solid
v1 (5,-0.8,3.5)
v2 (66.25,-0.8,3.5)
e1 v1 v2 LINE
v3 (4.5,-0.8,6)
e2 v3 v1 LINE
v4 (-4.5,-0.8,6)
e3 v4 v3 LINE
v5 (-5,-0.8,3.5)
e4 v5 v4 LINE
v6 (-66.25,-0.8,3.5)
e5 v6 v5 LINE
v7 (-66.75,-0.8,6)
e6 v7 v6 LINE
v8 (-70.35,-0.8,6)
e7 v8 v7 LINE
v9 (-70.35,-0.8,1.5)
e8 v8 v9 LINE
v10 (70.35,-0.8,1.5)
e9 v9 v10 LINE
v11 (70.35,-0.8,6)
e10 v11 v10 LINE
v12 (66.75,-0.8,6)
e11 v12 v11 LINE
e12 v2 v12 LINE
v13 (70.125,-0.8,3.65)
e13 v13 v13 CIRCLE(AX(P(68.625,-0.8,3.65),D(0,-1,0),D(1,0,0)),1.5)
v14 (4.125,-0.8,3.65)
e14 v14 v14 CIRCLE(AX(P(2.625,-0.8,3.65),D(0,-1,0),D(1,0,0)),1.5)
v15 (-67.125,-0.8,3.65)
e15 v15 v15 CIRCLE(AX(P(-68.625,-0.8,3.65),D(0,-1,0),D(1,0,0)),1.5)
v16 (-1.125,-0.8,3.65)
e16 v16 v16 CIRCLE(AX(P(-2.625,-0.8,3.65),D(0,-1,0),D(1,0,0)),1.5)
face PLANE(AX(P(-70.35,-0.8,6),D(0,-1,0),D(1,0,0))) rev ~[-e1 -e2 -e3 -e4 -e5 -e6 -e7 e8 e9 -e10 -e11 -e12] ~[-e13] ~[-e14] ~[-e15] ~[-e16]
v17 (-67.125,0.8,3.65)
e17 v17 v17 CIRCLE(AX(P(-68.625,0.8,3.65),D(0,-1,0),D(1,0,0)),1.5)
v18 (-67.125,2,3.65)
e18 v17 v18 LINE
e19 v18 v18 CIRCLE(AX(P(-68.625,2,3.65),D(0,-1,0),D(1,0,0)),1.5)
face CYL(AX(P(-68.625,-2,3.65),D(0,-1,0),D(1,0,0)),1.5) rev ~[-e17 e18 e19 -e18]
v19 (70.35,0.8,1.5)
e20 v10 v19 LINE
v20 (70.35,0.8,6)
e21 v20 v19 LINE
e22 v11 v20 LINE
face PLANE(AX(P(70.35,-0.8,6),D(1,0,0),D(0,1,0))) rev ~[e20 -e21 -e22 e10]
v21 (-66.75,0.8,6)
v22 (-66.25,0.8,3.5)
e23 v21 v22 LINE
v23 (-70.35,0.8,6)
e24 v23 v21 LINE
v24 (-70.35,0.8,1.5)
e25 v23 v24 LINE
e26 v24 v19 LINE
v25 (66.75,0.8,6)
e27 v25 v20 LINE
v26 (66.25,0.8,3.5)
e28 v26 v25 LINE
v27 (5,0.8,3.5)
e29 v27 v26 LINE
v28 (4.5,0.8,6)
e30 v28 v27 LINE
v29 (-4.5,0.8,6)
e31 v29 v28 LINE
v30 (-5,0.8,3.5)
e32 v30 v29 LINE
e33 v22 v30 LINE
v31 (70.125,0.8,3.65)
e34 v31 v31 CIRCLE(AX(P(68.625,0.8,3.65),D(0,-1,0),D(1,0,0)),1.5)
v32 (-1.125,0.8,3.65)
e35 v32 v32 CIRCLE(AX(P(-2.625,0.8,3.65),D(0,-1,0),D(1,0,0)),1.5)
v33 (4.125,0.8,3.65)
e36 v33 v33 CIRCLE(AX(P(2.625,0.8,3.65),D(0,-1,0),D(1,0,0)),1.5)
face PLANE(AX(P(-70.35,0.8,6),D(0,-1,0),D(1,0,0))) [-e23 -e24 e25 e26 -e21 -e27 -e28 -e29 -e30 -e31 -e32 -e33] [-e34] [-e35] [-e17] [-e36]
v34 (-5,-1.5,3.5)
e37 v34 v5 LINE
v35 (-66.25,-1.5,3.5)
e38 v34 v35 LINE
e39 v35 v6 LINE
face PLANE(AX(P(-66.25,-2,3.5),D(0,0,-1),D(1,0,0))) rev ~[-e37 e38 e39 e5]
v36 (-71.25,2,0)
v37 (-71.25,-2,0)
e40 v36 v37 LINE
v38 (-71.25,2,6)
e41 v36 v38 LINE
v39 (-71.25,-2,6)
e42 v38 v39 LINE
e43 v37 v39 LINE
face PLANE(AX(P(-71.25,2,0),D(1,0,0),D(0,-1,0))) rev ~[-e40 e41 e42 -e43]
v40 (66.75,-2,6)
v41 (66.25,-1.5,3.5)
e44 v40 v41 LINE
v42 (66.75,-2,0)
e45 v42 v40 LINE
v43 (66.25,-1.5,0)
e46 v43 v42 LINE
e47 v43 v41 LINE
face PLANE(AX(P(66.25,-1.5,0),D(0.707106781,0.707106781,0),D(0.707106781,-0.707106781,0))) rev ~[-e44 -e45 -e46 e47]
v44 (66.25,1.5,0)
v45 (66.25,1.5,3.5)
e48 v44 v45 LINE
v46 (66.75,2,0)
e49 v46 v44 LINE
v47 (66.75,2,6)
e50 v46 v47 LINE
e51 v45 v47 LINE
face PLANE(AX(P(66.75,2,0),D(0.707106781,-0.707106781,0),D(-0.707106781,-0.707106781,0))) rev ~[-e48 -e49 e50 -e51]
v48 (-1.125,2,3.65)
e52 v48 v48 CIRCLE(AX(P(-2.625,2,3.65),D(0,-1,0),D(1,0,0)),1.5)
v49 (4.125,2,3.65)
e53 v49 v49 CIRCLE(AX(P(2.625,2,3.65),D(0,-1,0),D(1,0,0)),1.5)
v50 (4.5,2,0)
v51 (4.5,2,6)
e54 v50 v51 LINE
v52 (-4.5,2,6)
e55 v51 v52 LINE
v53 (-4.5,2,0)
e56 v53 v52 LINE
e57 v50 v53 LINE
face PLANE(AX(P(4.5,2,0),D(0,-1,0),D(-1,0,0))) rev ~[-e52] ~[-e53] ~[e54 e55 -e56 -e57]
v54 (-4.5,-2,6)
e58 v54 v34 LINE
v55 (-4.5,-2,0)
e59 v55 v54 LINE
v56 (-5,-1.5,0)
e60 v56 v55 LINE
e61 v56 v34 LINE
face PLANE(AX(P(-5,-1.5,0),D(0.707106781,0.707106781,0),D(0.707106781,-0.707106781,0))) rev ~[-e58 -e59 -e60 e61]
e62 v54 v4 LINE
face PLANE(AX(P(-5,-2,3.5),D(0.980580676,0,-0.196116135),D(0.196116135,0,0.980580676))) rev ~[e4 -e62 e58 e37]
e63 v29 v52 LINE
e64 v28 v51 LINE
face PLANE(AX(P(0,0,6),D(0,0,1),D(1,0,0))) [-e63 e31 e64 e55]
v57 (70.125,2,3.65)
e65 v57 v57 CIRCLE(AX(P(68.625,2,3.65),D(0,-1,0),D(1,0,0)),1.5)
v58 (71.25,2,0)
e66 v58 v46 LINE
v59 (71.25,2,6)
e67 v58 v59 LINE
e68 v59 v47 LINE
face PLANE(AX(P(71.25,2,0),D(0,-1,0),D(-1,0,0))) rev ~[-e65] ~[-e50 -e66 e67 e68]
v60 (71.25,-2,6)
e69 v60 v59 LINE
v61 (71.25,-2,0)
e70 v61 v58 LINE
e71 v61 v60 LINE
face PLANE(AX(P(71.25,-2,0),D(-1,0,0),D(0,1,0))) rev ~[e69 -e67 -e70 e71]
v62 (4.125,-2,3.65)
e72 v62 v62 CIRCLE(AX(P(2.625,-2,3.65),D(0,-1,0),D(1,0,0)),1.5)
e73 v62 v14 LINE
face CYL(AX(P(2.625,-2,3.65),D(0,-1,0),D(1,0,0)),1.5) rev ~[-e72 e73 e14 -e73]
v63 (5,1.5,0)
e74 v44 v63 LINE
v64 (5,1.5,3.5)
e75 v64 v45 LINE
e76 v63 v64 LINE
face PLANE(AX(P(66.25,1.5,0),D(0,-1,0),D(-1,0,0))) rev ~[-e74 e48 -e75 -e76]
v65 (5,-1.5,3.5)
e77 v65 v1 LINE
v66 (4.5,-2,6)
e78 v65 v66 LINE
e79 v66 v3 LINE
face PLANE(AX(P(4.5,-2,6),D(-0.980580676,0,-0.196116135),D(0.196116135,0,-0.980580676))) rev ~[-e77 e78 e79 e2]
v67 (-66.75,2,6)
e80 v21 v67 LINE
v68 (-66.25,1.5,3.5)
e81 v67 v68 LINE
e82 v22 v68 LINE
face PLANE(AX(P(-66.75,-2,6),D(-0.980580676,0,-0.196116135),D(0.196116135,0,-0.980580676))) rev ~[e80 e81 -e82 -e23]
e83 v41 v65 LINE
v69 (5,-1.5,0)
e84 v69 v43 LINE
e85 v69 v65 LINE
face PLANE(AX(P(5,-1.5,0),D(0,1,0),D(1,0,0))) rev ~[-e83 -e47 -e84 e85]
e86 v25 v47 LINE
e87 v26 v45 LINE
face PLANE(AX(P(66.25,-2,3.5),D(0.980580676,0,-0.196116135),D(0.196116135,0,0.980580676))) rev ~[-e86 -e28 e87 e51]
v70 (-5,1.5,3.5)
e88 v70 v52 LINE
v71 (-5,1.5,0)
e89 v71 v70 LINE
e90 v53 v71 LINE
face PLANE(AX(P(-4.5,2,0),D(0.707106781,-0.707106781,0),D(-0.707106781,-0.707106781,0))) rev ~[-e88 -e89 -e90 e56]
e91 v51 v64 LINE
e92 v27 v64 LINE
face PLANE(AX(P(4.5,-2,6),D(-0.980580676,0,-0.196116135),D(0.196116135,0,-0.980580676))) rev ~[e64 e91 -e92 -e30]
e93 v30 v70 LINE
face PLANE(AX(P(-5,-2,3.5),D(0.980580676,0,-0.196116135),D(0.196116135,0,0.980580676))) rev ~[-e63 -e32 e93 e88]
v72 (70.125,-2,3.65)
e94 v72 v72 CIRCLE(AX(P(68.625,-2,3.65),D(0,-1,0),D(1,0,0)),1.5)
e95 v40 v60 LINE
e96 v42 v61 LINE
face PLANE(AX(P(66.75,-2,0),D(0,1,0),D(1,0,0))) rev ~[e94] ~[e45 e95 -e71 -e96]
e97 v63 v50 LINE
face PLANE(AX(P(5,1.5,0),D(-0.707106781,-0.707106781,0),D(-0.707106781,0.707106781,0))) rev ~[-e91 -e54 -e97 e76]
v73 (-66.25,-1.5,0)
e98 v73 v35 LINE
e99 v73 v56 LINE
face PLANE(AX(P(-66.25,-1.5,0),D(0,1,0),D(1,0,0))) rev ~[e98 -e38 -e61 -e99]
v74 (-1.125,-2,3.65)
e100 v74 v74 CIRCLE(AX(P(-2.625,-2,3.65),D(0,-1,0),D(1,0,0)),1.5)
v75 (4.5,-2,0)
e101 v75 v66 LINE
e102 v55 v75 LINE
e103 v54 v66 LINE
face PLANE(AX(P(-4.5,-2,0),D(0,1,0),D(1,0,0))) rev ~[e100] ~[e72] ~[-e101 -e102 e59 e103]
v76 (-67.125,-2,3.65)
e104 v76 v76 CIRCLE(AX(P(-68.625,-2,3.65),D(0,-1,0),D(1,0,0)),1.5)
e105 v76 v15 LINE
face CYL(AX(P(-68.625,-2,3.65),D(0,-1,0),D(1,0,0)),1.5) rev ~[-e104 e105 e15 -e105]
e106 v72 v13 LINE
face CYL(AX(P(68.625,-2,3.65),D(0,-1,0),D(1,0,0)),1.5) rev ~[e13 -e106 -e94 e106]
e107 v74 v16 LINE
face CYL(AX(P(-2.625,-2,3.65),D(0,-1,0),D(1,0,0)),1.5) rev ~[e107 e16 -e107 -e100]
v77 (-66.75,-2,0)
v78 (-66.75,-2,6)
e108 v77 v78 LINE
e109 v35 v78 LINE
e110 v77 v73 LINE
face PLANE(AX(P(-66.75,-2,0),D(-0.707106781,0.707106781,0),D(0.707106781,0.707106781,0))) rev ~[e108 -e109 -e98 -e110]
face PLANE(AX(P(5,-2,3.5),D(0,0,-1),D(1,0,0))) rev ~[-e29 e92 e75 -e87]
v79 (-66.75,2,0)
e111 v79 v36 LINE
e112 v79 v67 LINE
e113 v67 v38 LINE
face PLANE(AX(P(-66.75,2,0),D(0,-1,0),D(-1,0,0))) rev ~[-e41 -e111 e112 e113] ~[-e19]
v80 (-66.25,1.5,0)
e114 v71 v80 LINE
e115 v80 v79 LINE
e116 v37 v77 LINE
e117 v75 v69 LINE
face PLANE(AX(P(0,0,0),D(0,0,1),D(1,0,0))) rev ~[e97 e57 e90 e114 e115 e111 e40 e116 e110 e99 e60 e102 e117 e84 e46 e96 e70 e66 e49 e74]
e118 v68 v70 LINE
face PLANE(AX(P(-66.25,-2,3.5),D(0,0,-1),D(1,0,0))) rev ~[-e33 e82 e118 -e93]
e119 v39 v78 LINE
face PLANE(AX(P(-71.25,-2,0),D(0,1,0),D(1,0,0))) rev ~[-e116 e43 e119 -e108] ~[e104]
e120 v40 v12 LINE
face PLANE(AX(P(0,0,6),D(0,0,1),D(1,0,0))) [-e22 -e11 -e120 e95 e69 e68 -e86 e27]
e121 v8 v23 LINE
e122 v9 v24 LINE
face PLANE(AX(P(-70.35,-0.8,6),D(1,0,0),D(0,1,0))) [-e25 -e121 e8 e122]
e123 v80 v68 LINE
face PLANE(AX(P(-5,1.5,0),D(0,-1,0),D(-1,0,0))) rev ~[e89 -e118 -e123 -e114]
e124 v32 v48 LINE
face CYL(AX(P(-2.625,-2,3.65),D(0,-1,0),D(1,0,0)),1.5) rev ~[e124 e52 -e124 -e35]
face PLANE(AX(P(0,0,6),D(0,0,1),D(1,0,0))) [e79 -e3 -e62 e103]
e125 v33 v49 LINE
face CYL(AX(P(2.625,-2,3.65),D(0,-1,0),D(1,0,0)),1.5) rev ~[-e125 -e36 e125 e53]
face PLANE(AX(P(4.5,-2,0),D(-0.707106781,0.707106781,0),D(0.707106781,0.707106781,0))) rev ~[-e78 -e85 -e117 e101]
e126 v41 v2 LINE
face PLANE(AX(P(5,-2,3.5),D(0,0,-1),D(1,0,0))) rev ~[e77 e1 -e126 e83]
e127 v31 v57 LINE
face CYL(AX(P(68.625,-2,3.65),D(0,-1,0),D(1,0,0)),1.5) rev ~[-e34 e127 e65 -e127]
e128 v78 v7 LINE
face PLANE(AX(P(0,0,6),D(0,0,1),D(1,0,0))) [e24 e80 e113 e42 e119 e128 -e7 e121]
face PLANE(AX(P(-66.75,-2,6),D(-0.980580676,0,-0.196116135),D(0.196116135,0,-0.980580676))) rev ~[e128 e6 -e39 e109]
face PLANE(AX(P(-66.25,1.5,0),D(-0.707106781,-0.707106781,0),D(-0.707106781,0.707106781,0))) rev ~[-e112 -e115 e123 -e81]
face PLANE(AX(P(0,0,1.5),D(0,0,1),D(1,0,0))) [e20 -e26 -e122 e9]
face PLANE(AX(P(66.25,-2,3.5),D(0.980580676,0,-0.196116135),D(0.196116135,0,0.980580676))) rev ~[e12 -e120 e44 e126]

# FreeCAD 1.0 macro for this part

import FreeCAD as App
import Part
import Sketcher
Q = App.Units.Quantity


def add_polygon(sketch, points):
    """Adds a closed chain of lines whose ends are joined by coincident constraints."""
    first, n = sketch.GeometryCount, len(points)
    for a, b in zip(points, points[1:] + points[:1]):
        sketch.addGeometry(Part.LineSegment(App.Vector(*a, 0), App.Vector(*b, 0)), False)
    for i in range(n):
        sketch.addConstraint(Sketcher.Constraint("Coincident", first + i, 2, first + (i + 1) % n, 1))

doc = App.newDocument("Part")
body = doc.addObject("PartDesign::Body", "Body")

# Sketch on XY plane
sketch1 = body.newObject("Sketcher::SketchObject", "Sketch")
sketch1.AttachmentSupport = (doc.getObject("XY_Plane"), [""])
sketch1.MapMode = "FlatFace"
add_polygon(sketch1, [(-71.25, 2), (-71.25, -2), (-66.75, -2), (-66.25, -1.5), (-5, -1.5), (-4.5, -2), (4.5, -2), (5, -1.5), (66.25, -1.5), (66.75, -2), (71.25, -2), (71.25, 2), (66.75, 2), (66.25, 1.5), (5, 1.5), (4.5, 2), (-4.5, 2), (-5, 1.5), (-66.25, 1.5), (-66.75, 2)])  # lines 0-19
sketch1.addConstraint(Sketcher.Constraint("Vertical", 0))
sketch1.addConstraint(Sketcher.Constraint("Horizontal", 1))
sketch1.addConstraint(Sketcher.Constraint("Horizontal", 3))
sketch1.addConstraint(Sketcher.Constraint("Horizontal", 5))
sketch1.addConstraint(Sketcher.Constraint("Horizontal", 7))
sketch1.addConstraint(Sketcher.Constraint("Horizontal", 9))
sketch1.addConstraint(Sketcher.Constraint("Vertical", 10))
sketch1.addConstraint(Sketcher.Constraint("Horizontal", 11))
sketch1.addConstraint(Sketcher.Constraint("Horizontal", 13))
sketch1.addConstraint(Sketcher.Constraint("Horizontal", 15))
sketch1.addConstraint(Sketcher.Constraint("Horizontal", 17))
sketch1.addConstraint(Sketcher.Constraint("Horizontal", 19))
sketch1.addConstraint(Sketcher.Constraint("Symmetric", 0, 2, 10, 2, -1, 1))
sketch1.addConstraint(Sketcher.Constraint("Symmetric", 2, 2, 12, 2, -1, 1))
sketch1.addConstraint(Sketcher.Constraint("Symmetric", 4, 2, 14, 2, -1, 1))
sketch1.addConstraint(Sketcher.Constraint("Symmetric", 6, 2, 16, 2, -1, 1))
sketch1.addConstraint(Sketcher.Constraint("Symmetric", 8, 2, 18, 2, -1, 1))
sketch1.addConstraint(Sketcher.Constraint("Symmetric", 3, 2, 6, 2, -2))
sketch1.addConstraint(Sketcher.Constraint("Symmetric", 1, 2, 8, 2, -2))
sketch1.addConstraint(Sketcher.Constraint("Perpendicular", 2, 4))
sketch1.addConstraint(Sketcher.Constraint("Perpendicular", 4, 6))
sketch1.addConstraint(Sketcher.Constraint("Perpendicular", 6, 8))
sketch1.addConstraint(Sketcher.Constraint("Perpendicular", 8, 12))
sketch1.addConstraint(Sketcher.Constraint("Perpendicular", 12, 14))
sketch1.addConstraint(Sketcher.Constraint("Perpendicular", 14, 16))
sketch1.addConstraint(Sketcher.Constraint("Perpendicular", 16, 18))
sketch1.addConstraint(Sketcher.Constraint("Horizontal", 1, 2, 4, 2))
sketch1.addConstraint(Sketcher.Constraint("Vertical", 7, 2, 12, 2))
sketch1.addConstraint(Sketcher.Constraint("DistanceX", 5, 1, 5, 2, Q("9 mm")))
sketch1.addConstraint(Sketcher.Constraint("DistanceY", 0, 2, 0, 1, Q("4 mm")))
sketch1.addConstraint(Sketcher.Constraint("DistanceX", 1, 1, 1, 2, Q("4.5 mm")))
sketch1.addConstraint(Sketcher.Constraint("DistanceX", 3, 2, -1, 1, Q("5 mm")))
sketch1.addConstraint(Sketcher.Constraint("DistanceX", 3, 1, 3, 2, Q("61.25 mm")))
pad1 = body.newObject("PartDesign::Pad", "Pad")
pad1.Profile = sketch1
pad1.Length = 6

# Sketch on XY plane
sketch2 = body.newObject("Sketcher::SketchObject", "Sketch001")
sketch2.AttachmentSupport = (doc.getObject("XY_Plane"), [""])
sketch2.MapMode = "FlatFace"
sketch2.AttachmentOffset = App.Placement(App.Vector(0, 0, 6), App.Rotation())
add_polygon(sketch2, [(-70.35, 0.8), (-70.35, -0.8), (70.35, -0.8), (70.35, 0.8)])  # lines 0-3
sketch2.addConstraint(Sketcher.Constraint("Vertical", 0))
sketch2.addConstraint(Sketcher.Constraint("Horizontal", 1))
sketch2.addConstraint(Sketcher.Constraint("Vertical", 2))
sketch2.addConstraint(Sketcher.Constraint("Horizontal", 3))
sketch2.addConstraint(Sketcher.Constraint("Symmetric", 0, 2, 2, 2, -1, 1))
sketch2.addConstraint(Sketcher.Constraint("DistanceX", 1, 1, 1, 2, Q("140.7 mm")))
sketch2.addConstraint(Sketcher.Constraint("DistanceY", 0, 2, 0, 1, Q("1.6 mm")))
pocket1 = body.newObject("PartDesign::Pocket", "Pocket")
pocket1.Profile = sketch2
pocket1.Length = 4.5

# Sketch on XZ plane
sketch3 = body.newObject("Sketcher::SketchObject", "Sketch002")
sketch3.AttachmentSupport = (doc.getObject("XZ_Plane"), [""])
sketch3.MapMode = "FlatFace"
sketch3.AttachmentOffset = App.Placement(App.Vector(0, 0, 2), App.Rotation())
sketch3.addGeometry(Part.Circle(App.Vector(-68.625, 3.65, 0), App.Vector(0, 0, 1), 1.5), False)  # 0
sketch3.addGeometry(Part.Circle(App.Vector(-2.625, 3.65, 0), App.Vector(0, 0, 1), 1.5), False)  # 1
sketch3.addGeometry(Part.Circle(App.Vector(2.625, 3.65, 0), App.Vector(0, 0, 1), 1.5), False)  # 2
sketch3.addGeometry(Part.Circle(App.Vector(68.625, 3.65, 0), App.Vector(0, 0, 1), 1.5), False)  # 3
add_polygon(sketch3, [(-66.75, 6), (-66.25, 3.5), (-5, 3.5), (-4.5, 6)])  # lines 4-7
add_polygon(sketch3, [(4.5, 6), (5, 3.5), (66.25, 3.5), (66.75, 6)])  # lines 8-11
sketch3.addConstraint(Sketcher.Constraint("Horizontal", 5))
sketch3.addConstraint(Sketcher.Constraint("Horizontal", 7))
sketch3.addConstraint(Sketcher.Constraint("Horizontal", 9))
sketch3.addConstraint(Sketcher.Constraint("Horizontal", 11))
sketch3.addConstraint(Sketcher.Constraint("Equal", 0, 1))
sketch3.addConstraint(Sketcher.Constraint("Equal", 1, 2))
sketch3.addConstraint(Sketcher.Constraint("Equal", 2, 3))
sketch3.addConstraint(Sketcher.Constraint("Symmetric", 1, 3, 2, 3, -2))
sketch3.addConstraint(Sketcher.Constraint("Symmetric", 0, 3, 3, 3, -2))
sketch3.addConstraint(Sketcher.Constraint("Symmetric", 5, 2, 8, 2, -2))
sketch3.addConstraint(Sketcher.Constraint("Symmetric", 7, 2, 10, 2, -2))
sketch3.addConstraint(Sketcher.Constraint("Parallel", 4, 8))
sketch3.addConstraint(Sketcher.Constraint("Parallel", 6, 10))
sketch3.addConstraint(Sketcher.Constraint("Horizontal", 0, 3, 1, 3))
sketch3.addConstraint(Sketcher.Constraint("Equal", 5, 9))
sketch3.addConstraint(Sketcher.Constraint("Diameter", 0, Q("3 mm")))
sketch3.addConstraint(Sketcher.Constraint("DistanceX", 5, 2, -1, 1, Q("5 mm")))
sketch3.addConstraint(Sketcher.Constraint("DistanceY", -1, 1, 6, 2, Q("6 mm")))
sketch3.addConstraint(Sketcher.Constraint("DistanceX", 0, 3, 1, 3, Q("66 mm")))
sketch3.addConstraint(Sketcher.Constraint("DistanceX", 6, 2, 11, 2, Q("9 mm")))
sketch3.addConstraint(Sketcher.Constraint("DistanceX", 5, 1, 5, 2, Q("61.25 mm")))
sketch3.addConstraint(Sketcher.Constraint("DistanceY", -1, 1, 4, 2, Q("3.5 mm")))
sketch3.addConstraint(Sketcher.Constraint("DistanceY", -1, 1, 0, 3, Q("3.65 mm")))
sketch3.addConstraint(Sketcher.Constraint("DistanceX", 1, 3, 2, 3, Q("5.25 mm")))
pocket2 = body.newObject("PartDesign::Pocket", "Pocket001")
pocket2.Profile = sketch3
pocket2.Type = "ThroughAll"

doc.recompute()
